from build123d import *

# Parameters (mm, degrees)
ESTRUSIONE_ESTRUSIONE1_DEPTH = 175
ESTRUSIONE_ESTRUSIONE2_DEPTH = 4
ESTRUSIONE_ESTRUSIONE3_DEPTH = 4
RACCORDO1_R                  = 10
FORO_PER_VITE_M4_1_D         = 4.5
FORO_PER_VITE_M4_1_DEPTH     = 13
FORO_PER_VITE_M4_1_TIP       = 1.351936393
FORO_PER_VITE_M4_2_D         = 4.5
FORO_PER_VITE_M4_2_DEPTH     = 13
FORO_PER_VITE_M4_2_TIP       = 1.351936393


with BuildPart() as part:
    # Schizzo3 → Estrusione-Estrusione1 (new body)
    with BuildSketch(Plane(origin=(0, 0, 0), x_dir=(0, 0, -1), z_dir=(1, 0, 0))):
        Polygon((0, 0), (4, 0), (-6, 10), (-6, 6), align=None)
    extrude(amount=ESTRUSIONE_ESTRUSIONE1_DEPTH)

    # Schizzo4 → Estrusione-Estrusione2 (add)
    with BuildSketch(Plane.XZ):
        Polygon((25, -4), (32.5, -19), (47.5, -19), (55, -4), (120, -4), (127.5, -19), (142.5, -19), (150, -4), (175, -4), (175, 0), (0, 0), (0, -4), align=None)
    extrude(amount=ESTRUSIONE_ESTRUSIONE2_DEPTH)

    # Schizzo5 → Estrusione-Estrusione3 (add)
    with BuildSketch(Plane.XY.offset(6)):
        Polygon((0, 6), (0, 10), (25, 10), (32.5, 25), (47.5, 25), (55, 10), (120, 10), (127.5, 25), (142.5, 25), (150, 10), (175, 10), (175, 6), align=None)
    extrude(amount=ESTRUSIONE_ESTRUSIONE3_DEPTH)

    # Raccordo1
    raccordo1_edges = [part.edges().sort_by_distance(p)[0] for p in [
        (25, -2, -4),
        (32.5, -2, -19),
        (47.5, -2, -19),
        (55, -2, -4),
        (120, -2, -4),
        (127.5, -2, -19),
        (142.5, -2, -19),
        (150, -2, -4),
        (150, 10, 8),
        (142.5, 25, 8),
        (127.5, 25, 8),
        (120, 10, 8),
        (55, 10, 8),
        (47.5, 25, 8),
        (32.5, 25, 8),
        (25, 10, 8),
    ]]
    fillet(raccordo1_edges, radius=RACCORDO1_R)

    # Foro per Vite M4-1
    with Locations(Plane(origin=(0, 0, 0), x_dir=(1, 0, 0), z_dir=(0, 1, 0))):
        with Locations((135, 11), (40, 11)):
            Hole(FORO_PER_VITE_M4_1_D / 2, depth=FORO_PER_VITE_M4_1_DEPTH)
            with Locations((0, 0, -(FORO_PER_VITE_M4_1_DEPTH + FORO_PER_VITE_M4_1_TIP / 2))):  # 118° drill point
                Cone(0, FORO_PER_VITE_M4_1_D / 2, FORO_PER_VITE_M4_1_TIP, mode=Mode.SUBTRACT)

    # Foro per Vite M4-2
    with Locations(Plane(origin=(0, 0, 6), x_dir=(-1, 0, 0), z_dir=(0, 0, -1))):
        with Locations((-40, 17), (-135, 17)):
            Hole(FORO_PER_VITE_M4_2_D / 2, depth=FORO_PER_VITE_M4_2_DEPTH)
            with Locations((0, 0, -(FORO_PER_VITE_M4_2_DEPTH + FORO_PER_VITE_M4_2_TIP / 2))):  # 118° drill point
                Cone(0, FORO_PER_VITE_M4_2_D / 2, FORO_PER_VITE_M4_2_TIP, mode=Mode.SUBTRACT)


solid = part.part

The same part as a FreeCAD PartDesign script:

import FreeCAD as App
import Part
import Sketcher


def edges_at(feature, points):
    """Names of the edges that pass closest to the given points."""
    edges = feature.Shape.Edges
    near = lambda p: min(range(len(edges)), key=lambda i: edges[i].distToShape(Part.Vertex(*p))[0])
    return sorted({f"Edge{near(p) + 1}" for p in points})


def add_polygon(sketch, points):
    """Adds a closed chain of lines whose ends are joined by coincident constraints."""
    first, n = sketch.GeometryCount, len(points)
    for a, b in zip(points, points[1:] + points[:1]):
        sketch.addGeometry(Part.LineSegment(App.Vector(*a, 0), App.Vector(*b, 0)), False)
    for i in range(n):
        sketch.addConstraint(Sketcher.Constraint("Coincident", first + i, 2, first + (i + 1) % n, 1))

doc = App.newDocument("Part")
body = doc.addObject("PartDesign::Body", "Body")

sketch1 = body.newObject("Sketcher::SketchObject", "Sketch")
sketch1.AttachmentSupport = (doc.getObject("YZ_Plane"), [""])
sketch1.MapMode = "FlatFace"
add_polygon(sketch1, [(0, 0), (0, -4), (10, 6), (6, 6)])
sketch1.addConstraint([
    Sketcher.Constraint("Vertical", 0),
    Sketcher.Constraint("Horizontal", 2),
    Sketcher.Constraint("Coincident", 3, 2, -1, 1),
    Sketcher.Constraint("Parallel", 1, 3),
    Sketcher.Constraint("Equal", 2, 0),
    Sketcher.Constraint("DistanceX", 2, 2, 2, 1, 4.0),
    Sketcher.Constraint("DistanceX", -1, 1, 1, 2, 10.0),
])
pad1 = body.newObject("PartDesign::Pad", "Pad")
pad1.Profile = sketch1
pad1.Length = 175

sketch2 = body.newObject("Sketcher::SketchObject", "Sketch001")
sketch2.AttachmentSupport = (doc.getObject("XZ_Plane"), [""])
sketch2.MapMode = "FlatFace"
add_polygon(sketch2, [(25, -4), (32.5, -19), (47.5, -19), (55, -4), (120, -4), (127.5, -19), (142.5, -19), (150, -4), (175, -4), (175, 0), (0, 0), (0, -4)])
sketch2.addConstraint([
    Sketcher.Constraint("Horizontal", 1),
    Sketcher.Constraint("Horizontal", 3),
    Sketcher.Constraint("Horizontal", 5),
    Sketcher.Constraint("Horizontal", 7),
    Sketcher.Constraint("Vertical", 8),
    Sketcher.Constraint("Horizontal", 9),
    Sketcher.Constraint("Vertical", 10),
    Sketcher.Constraint("Horizontal", 11),
    Sketcher.Constraint("Coincident", 9, 2, -1, 1),
    Sketcher.Constraint("Parallel", 0, 4),
    Sketcher.Constraint("Parallel", 2, 6),
    Sketcher.Constraint("Horizontal", 1, 2, 4, 2),
    Sketcher.Constraint("Horizontal", 3, 2, 6, 2),
    Sketcher.Constraint("Horizontal", 7, 2, 10, 2),
    Sketcher.Constraint("Equal", 1, 5),
    Sketcher.Constraint("Equal", 7, 11),
    Sketcher.Constraint("Equal", 0, 2),
    Sketcher.Constraint("DistanceX", 1, 1, 1, 2, 15.0),
    Sketcher.Constraint("DistanceX", 3, 1, 3, 2, 65.0),
    Sketcher.Constraint("DistanceX", 7, 1, 7, 2, 25.0),
    Sketcher.Constraint("DistanceX", 9, 2, 9, 1, 175.0),
    Sketcher.Constraint("DistanceY", 8, 1, 8, 2, 4.0),
    Sketcher.Constraint("DistanceY", 0, 2, -1, 1, 19.0),
])
pad2 = body.newObject("PartDesign::Pad", "Pad001")
pad2.Profile = sketch2
pad2.Length = 4

sketch3 = body.newObject("Sketcher::SketchObject", "Sketch002")
sketch3.AttachmentSupport = (doc.getObject("XY_Plane"), [""])
sketch3.MapMode = "FlatFace"
sketch3.AttachmentOffset = App.Placement(App.Vector(0, 0, 6), App.Rotation())
add_polygon(sketch3, [(0, 10), (0, 6), (175, 6), (175, 10), (150, 10), (142.5, 25), (127.5, 25), (120, 10), (55, 10), (47.5, 25), (32.5, 25), (25, 10)])
sketch3.addConstraint([
    Sketcher.Constraint("Vertical", 0),
    Sketcher.Constraint("Horizontal", 1),
    Sketcher.Constraint("Vertical", 2),
    Sketcher.Constraint("Horizontal", 3),
    Sketcher.Constraint("Horizontal", 5),
    Sketcher.Constraint("Horizontal", 7),
    Sketcher.Constraint("Horizontal", 9),
    Sketcher.Constraint("Horizontal", 11),
    Sketcher.Constraint("PointOnObject", 0, 2, -2),
    Sketcher.Constraint("Parallel", 4, 8),
    Sketcher.Constraint("Parallel", 6, 10),
    Sketcher.Constraint("Horizontal", 3, 2, 6, 2),
    Sketcher.Constraint("Horizontal", 5, 2, 8, 2),
    Sketcher.Constraint("Horizontal", 7, 2, 10, 2),
    Sketcher.Constraint("Equal", 5, 9),
    Sketcher.Constraint("Equal", 3, 11),
    Sketcher.Constraint("Equal", 4, 6),
    Sketcher.Constraint("DistanceX", 1, 1, 1, 2, 175.0),
    Sketcher.Constraint("DistanceX", 3, 2, 3, 1, 25.0),
    Sketcher.Constraint("DistanceX", 5, 2, 5, 1, 15.0),
    Sketcher.Constraint("DistanceX", 7, 2, 7, 1, 65.0),
    Sketcher.Constraint("DistanceY", 0, 2, 0, 1, 4.0),
    Sketcher.Constraint("DistanceY", -1, 1, 0, 2, 6.0),
    Sketcher.Constraint("DistanceY", -1, 1, 4, 2, 25.0),
])
pad3 = body.newObject("PartDesign::Pad", "Pad002")
pad3.Profile = sketch3
pad3.Length = 4
doc.recompute()

fillet = body.newObject("PartDesign::Fillet", "Fillet")
fillet.Base = (pad3, edges_at(pad3, [
    (25, -2, -4),
    (32.5, -2, -19),
    (47.5, -2, -19),
    (55, -2, -4),
    (120, -2, -4),
    (127.5, -2, -19),
    (142.5, -2, -19),
    (150, -2, -4),
    (150, 10, 8),
    (142.5, 25, 8),
    (127.5, 25, 8),
    (120, 10, 8),
    (55, 10, 8),
    (47.5, 25, 8),
    (32.5, 25, 8),
    (25, 10, 8),
]))
fillet.Radius = 10

sketch4 = body.newObject("Sketcher::SketchObject", "Sketch003")
sketch4.AttachmentSupport = (doc.getObject("XZ_Plane"), [""])
sketch4.MapMode = "FlatFace"
sketch4.addGeometry([
    Part.Circle(App.Vector(135, -11, 0), App.Vector(0, 0, 1), 2.2),
    Part.Circle(App.Vector(40, -11, 0), App.Vector(0, 0, 1), 2.2),
], False)
sketch4.addConstraint([
    Sketcher.Constraint("Equal", 0, 1),
    Sketcher.Constraint("Horizontal", 0, 3, 1, 3),
    Sketcher.Constraint("Diameter", 0, 4.5),
    Sketcher.Constraint("DistanceX", -1, 1, 0, 3, 135.0),
    Sketcher.Constraint("DistanceY", 0, 3, -1, 1, 11.0),
    Sketcher.Constraint("DistanceX", -1, 1, 1, 3, 40.0),
])
doc.recompute()
hole = body.newObject("PartDesign::Hole", "Hole")
hole.Profile = sketch4
hole.ThreadType = "None"
hole.Diameter = 4.5
hole.DepthType = "Dimension"
hole.Depth = 13
hole.DrillPoint = "Angled"
hole.DrillPointAngle = 118
hole.Reversed = True

sketch5 = body.newObject("Sketcher::SketchObject", "Sketch004")
sketch5.AttachmentSupport = (doc.getObject("XY_Plane"), [""])
sketch5.MapMode = "FlatFace"
sketch5.AttachmentOffset = App.Placement(App.Vector(0, 0, 6), App.Rotation())
sketch5.addGeometry([
    Part.Circle(App.Vector(40, 17, 0), App.Vector(0, 0, 1), 2.2),
    Part.Circle(App.Vector(135, 17, 0), App.Vector(0, 0, 1), 2.2),
], False)
sketch5.addConstraint([
    Sketcher.Constraint("Equal", 0, 1),
    Sketcher.Constraint("Horizontal", 0, 3, 1, 3),
    Sketcher.Constraint("Diameter", 0, 4.5),
    Sketcher.Constraint("DistanceX", -1, 1, 0, 3, 40.0),
    Sketcher.Constraint("DistanceY", -1, 1, 0, 3, 17.0),
    Sketcher.Constraint("DistanceX", -1, 1, 1, 3, 135.0),
])
doc.recompute()
hole2 = body.newObject("PartDesign::Hole", "Hole001")
hole2.Profile = sketch5
hole2.ThreadType = "None"
hole2.Diameter = 4.5
hole2.DepthType = "Dimension"
hole2.Depth = 13
hole2.DrillPoint = "Angled"
hole2.DrillPointAngle = 118
hole2.Reversed = True

doc.recompute()
